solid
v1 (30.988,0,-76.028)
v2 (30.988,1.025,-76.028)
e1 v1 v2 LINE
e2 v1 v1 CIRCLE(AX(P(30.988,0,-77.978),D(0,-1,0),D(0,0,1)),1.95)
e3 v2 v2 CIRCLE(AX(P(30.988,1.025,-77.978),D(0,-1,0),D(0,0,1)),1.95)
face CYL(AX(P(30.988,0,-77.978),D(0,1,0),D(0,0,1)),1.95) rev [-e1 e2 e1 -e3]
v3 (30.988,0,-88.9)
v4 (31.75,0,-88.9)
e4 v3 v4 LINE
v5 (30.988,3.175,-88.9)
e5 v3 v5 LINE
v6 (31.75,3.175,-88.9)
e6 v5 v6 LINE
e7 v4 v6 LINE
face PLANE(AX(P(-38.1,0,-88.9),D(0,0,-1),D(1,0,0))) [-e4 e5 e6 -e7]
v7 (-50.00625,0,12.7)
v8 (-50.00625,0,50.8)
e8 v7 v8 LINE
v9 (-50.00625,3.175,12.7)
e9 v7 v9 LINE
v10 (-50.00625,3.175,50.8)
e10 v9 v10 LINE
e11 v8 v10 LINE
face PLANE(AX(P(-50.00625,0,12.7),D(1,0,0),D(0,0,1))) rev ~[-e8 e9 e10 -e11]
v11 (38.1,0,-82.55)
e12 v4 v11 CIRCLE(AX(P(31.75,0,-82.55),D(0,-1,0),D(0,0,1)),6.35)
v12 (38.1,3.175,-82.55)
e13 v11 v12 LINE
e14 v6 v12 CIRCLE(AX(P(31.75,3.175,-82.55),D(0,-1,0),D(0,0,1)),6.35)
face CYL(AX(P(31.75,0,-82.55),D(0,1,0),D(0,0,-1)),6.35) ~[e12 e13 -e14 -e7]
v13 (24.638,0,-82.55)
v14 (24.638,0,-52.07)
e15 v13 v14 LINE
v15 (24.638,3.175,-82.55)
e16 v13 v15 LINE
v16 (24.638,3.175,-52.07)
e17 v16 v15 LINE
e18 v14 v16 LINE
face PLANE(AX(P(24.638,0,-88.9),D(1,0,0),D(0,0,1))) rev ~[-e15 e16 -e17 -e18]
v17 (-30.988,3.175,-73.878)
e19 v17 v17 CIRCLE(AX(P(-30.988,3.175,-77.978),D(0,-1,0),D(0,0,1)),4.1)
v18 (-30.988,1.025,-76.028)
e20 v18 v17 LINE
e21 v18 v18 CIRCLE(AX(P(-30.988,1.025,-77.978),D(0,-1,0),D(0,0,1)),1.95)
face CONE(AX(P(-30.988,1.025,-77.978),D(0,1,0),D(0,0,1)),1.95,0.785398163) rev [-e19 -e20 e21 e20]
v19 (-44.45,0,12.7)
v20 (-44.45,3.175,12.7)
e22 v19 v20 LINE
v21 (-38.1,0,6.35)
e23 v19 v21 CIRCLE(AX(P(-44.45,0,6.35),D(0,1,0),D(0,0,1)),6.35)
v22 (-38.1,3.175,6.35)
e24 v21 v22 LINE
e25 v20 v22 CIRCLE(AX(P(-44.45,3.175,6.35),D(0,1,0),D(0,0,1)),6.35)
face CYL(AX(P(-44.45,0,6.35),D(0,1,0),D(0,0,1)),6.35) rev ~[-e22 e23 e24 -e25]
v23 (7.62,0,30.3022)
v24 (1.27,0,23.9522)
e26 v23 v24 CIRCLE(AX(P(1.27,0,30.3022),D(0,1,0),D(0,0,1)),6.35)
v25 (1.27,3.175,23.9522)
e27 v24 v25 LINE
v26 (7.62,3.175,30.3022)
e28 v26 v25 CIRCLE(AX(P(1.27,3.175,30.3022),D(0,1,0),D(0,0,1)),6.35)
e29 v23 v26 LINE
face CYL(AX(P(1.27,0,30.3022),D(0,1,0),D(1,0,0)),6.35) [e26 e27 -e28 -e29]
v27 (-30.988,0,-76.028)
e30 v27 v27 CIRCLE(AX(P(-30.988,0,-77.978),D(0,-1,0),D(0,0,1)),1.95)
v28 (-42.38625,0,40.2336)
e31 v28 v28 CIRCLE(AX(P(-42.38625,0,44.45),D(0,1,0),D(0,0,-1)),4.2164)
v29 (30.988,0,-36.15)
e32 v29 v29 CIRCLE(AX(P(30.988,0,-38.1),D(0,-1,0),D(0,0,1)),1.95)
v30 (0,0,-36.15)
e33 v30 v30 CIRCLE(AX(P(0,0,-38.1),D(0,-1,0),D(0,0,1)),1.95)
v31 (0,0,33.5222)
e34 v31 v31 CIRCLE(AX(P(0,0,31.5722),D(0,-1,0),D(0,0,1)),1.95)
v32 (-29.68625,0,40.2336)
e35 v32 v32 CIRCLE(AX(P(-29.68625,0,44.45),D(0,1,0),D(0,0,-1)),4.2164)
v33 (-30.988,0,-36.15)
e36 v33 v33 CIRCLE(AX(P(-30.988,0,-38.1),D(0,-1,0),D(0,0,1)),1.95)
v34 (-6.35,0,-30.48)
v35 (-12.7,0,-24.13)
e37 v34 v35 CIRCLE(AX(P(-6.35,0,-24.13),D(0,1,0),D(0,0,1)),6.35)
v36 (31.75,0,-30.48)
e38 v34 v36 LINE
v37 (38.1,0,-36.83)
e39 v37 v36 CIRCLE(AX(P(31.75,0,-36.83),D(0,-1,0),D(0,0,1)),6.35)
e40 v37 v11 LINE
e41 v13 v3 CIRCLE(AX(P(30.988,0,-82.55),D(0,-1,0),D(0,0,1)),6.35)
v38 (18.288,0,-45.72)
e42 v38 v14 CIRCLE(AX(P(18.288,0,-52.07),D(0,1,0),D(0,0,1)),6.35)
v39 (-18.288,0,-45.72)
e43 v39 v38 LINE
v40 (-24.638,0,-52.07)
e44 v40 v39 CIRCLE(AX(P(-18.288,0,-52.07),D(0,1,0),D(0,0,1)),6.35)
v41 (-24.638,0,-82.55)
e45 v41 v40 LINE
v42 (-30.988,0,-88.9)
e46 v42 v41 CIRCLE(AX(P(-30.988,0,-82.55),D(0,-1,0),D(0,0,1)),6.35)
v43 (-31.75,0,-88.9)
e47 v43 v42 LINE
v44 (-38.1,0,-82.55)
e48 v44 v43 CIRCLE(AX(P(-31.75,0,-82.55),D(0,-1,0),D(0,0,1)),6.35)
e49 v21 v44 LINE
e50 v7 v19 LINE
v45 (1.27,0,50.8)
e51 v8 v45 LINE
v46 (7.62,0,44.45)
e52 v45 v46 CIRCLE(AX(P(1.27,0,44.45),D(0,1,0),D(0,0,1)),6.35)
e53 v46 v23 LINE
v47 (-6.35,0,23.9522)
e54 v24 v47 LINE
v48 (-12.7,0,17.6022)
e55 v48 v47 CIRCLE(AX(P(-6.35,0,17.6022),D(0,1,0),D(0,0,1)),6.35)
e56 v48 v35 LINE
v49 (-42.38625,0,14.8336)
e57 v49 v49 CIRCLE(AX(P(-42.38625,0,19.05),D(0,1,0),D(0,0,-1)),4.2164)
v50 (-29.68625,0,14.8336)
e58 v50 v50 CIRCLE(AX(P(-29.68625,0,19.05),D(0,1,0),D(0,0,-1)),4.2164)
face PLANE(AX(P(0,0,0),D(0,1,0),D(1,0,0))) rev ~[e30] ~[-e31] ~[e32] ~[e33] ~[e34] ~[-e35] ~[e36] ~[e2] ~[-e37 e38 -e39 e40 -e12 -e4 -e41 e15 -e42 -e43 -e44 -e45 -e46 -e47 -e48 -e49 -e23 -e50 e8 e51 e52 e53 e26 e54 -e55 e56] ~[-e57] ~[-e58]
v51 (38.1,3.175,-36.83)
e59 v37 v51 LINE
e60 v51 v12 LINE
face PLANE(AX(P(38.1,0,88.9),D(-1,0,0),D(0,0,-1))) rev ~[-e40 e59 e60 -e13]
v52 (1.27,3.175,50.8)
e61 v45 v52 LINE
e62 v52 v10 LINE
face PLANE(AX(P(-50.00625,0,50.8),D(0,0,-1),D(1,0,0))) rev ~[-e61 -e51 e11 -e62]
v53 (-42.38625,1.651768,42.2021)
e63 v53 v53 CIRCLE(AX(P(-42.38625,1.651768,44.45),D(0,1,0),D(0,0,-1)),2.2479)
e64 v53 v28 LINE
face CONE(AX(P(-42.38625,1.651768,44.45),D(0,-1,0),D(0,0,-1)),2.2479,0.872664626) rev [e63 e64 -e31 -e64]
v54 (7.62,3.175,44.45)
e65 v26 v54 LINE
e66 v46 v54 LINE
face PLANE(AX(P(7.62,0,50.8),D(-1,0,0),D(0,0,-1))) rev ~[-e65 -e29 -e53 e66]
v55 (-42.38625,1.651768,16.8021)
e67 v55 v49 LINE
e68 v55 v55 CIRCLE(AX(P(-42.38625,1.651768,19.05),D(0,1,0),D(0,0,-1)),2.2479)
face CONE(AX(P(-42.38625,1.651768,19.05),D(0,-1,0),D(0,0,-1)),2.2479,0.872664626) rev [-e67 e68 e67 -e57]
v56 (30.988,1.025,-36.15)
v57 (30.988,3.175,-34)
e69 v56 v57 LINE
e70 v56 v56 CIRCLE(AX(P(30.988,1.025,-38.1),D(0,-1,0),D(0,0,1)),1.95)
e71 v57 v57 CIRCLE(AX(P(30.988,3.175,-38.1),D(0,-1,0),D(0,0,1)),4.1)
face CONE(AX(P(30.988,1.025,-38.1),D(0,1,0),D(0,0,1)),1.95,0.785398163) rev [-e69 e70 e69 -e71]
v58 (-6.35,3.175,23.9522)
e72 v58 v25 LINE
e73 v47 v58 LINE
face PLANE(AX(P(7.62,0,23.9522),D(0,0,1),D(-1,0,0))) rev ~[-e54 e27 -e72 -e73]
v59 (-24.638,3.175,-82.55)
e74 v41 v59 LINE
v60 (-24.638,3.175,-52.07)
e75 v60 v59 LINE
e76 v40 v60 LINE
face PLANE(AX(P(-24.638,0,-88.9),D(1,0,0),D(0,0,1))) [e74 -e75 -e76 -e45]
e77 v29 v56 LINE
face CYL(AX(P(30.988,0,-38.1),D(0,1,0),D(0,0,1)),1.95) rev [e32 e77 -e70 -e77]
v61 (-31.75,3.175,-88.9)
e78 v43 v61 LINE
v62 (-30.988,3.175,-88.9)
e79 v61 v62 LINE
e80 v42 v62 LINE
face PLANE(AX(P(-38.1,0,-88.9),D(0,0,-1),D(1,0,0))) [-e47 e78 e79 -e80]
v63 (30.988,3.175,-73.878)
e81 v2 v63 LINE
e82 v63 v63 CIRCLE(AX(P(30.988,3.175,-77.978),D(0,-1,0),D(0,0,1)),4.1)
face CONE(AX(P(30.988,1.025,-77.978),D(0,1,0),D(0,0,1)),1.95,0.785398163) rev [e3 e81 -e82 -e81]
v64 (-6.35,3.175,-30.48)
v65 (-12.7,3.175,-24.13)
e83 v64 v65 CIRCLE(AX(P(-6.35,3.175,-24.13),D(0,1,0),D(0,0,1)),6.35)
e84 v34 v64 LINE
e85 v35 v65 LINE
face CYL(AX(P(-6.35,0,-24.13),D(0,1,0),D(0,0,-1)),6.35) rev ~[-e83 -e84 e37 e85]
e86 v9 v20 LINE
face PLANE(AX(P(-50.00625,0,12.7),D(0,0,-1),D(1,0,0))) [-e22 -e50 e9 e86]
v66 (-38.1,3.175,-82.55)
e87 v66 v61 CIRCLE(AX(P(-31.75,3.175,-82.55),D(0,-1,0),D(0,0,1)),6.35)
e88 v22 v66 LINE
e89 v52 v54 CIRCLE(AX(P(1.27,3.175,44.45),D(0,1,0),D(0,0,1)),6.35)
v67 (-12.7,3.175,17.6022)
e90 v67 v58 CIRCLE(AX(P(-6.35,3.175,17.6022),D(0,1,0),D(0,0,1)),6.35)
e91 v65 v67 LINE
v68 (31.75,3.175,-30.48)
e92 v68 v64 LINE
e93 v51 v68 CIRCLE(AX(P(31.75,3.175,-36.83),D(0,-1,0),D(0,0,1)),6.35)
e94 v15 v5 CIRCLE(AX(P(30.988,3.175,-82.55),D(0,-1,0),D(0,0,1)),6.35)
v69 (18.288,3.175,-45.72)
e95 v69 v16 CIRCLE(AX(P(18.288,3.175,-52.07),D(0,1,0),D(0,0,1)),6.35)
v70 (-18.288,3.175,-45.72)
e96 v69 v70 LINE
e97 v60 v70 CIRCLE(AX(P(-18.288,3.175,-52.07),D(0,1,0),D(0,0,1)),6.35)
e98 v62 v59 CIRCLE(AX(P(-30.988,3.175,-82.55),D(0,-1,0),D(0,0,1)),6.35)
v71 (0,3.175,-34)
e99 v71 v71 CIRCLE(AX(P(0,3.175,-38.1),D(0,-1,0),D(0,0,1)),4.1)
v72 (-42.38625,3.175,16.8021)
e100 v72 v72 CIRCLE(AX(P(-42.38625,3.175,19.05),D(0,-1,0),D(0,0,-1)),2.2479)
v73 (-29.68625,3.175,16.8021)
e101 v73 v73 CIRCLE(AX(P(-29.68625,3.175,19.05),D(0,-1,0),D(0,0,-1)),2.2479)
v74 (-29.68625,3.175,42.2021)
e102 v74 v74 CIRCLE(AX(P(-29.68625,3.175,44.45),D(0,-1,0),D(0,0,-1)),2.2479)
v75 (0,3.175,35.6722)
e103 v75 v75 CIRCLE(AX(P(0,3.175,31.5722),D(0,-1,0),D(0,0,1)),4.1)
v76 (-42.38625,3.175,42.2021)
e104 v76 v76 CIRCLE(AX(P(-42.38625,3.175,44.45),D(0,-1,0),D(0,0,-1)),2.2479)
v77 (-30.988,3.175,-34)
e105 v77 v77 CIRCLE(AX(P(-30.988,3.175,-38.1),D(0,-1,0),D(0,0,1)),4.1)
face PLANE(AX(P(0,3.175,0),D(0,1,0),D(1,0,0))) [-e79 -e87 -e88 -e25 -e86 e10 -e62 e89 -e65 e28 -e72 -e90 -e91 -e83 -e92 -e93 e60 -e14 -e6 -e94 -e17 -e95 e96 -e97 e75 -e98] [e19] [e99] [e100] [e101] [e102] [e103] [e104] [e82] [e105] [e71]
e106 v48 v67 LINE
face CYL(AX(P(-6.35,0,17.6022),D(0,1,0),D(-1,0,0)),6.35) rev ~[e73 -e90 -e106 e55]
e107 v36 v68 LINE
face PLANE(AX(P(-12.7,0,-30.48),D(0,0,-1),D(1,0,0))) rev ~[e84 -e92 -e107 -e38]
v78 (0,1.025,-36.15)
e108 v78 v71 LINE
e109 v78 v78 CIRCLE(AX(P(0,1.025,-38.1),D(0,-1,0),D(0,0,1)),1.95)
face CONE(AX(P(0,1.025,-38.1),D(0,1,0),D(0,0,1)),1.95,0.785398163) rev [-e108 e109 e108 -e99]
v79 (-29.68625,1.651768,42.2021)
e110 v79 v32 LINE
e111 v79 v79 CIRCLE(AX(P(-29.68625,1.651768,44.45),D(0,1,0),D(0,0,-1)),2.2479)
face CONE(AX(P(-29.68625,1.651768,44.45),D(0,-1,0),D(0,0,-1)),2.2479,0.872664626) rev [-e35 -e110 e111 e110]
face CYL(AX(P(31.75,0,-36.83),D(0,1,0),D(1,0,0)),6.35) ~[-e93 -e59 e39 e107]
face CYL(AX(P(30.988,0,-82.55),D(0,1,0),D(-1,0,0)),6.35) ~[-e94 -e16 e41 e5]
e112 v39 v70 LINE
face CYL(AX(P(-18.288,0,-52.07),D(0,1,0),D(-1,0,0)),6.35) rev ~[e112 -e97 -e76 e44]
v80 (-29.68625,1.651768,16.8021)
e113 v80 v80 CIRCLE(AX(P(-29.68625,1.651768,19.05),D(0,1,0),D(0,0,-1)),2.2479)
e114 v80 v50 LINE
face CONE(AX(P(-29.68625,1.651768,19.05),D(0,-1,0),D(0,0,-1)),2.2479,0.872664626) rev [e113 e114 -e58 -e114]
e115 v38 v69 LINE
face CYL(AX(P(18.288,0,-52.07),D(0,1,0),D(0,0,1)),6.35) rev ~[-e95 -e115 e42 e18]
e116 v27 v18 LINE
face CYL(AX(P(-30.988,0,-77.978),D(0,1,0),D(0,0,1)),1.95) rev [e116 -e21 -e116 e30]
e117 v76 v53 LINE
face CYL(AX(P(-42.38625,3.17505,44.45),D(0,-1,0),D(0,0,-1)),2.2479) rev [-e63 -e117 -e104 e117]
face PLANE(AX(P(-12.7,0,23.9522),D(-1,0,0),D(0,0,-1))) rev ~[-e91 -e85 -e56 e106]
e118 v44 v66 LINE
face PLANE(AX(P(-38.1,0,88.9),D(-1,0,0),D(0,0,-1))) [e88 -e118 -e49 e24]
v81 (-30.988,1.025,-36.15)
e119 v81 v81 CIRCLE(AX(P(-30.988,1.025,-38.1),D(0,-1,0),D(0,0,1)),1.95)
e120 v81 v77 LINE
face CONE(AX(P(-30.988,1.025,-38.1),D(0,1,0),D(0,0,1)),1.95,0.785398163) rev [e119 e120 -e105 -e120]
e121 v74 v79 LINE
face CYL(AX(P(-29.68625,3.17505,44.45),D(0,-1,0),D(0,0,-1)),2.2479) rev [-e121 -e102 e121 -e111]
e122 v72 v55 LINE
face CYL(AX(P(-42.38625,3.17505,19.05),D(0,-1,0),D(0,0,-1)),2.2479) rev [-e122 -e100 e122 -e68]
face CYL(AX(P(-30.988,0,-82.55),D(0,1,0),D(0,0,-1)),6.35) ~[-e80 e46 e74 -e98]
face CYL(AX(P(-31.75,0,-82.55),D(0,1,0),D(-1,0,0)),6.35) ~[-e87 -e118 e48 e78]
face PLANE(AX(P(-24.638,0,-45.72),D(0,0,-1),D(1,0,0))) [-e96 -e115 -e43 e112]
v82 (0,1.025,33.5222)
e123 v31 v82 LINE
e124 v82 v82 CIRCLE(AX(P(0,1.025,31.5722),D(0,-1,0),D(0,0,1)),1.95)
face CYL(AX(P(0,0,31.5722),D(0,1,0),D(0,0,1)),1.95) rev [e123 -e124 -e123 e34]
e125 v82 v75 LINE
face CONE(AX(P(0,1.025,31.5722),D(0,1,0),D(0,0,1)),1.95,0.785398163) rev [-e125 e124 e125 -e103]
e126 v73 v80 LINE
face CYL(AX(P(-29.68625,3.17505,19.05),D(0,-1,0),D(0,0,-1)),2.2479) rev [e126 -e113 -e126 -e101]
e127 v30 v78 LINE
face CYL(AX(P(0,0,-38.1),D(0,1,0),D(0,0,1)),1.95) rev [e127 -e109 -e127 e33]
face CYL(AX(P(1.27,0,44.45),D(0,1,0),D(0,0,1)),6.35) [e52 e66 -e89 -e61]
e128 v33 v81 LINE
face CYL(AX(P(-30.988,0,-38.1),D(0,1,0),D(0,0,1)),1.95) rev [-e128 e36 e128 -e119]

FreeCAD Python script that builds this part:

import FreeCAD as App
import Part
import Sketcher
Q = App.Units.Quantity


def edges_at(feature, points):
    """Names of the edges that pass closest to the given points."""
    edges = feature.Shape.Edges
    near = lambda p: min(range(len(edges)), key=lambda i: edges[i].distToShape(Part.Vertex(*p))[0])
    return sorted({f"Edge{near(p) + 1}" for p in points})


def add_polygon(sketch, points):
    """Adds a closed chain of lines whose ends are joined by coincident constraints."""
    first, n = sketch.GeometryCount, len(points)
    for a, b in zip(points, points[1:] + points[:1]):
        sketch.addGeometry(Part.LineSegment(App.Vector(*a, 0), App.Vector(*b, 0)), False)
    for i in range(n):
        sketch.addConstraint(Sketcher.Constraint("Coincident", first + i, 2, first + (i + 1) % n, 1))

doc = App.newDocument("Part")
body = doc.addObject("PartDesign::Body", "Body")

# Sketch on XZ plane
sketch1 = body.newObject("Sketcher::SketchObject", "Sketch")
sketch1.AttachmentSupport = (doc.getObject("XZ_Plane"), [""])
sketch1.MapMode = "FlatFace"
add_polygon(sketch1, [(-38, -89), (-38, 89), (38, 89), (38, -89)])  # lines 0-3
sketch1.addConstraint([
    Sketcher.Constraint("Vertical", 0),
    Sketcher.Constraint("Horizontal", 1),
    Sketcher.Constraint("Vertical", 2),
    Sketcher.Constraint("Horizontal", 3),
    Sketcher.Constraint("Symmetric", 0, 2, 2, 2, -1, 1),
    Sketcher.Constraint("DistanceX", 1, 1, 1, 2, Q("3 in")),
    Sketcher.Constraint("DistanceY", 0, 1, 0, 2, Q("7 in")),
])
pad1 = body.newObject("PartDesign::Pad", "Pad")
pad1.Profile = sketch1
pad1.Length = Q("0.125 in")
pad1.Reversed = True

# Sketch on YZ plane
sketch2 = body.newObject("Sketcher::SketchObject", "Sketch001")
sketch2.AttachmentSupport = (doc.getObject("YZ_Plane"), [""])
sketch2.MapMode = "FlatFace"
sketch2.AttachmentOffset = App.Placement(App.Vector(0, 0, -1.22 * 25.4), App.Rotation())
add_polygon(sketch2, [(0, -78), (3.2, -78), (3.2, -73.9), (1, -76), (0, -76)])  # lines 0-4
sketch2.addGeometry(Part.LineSegment(App.Vector(3.2, -78, 0), App.Vector(0, -78, 0)), True)  # axis
sketch2.addConstraint([
    Sketcher.Constraint("Horizontal", 0),
    Sketcher.Constraint("Vertical", 1),
    Sketcher.Constraint("Horizontal", 3),
    Sketcher.Constraint("Vertical", 4),
    Sketcher.Constraint("Horizontal", 5),
    Sketcher.Constraint("Coincident", 5, 1, 0, 2),
    Sketcher.Constraint("PointOnObject", 3, 2, -2),
    Sketcher.Constraint("PointOnObject", 5, 2, -2),
    Sketcher.Constraint("Angle", 2, Q("-135 deg")),
    Sketcher.Constraint("DistanceX", 0, 1, 0, 2, Q("0.125 in")),
    Sketcher.Constraint("DistanceY", 0, 2, -1, 1, Q("3.07 in")),
    Sketcher.Constraint("DistanceX", 3, 2, 3, 1, 1.025),
    Sketcher.Constraint("DistanceY", 1, 1, 1, 2, 4.1),
])
groove = body.newObject("PartDesign::Groove", "Groove")
groove.Profile = sketch2
groove.ReferenceAxis = (sketch2, ["Axis0"])
groove.Angle = 360
doc.recompute()

linearpattern = body.newObject("PartDesign::LinearPattern", "LinearPattern")
linearpattern.Originals = [groove]
linearpattern.Direction = (doc.getObject("X_Axis"), [""])
linearpattern.Mode = "offset"
linearpattern.Offset = Q("2.44 in")
linearpattern.Occurrences = 2
body.Tip = linearpattern
doc.recompute()

datumline = body.newObject("PartDesign::Line", "DatumLine")
datumline.Placement = App.Placement(App.Vector(0, 0, 0), App.Rotation(App.Vector(0, 0, 1), App.Vector(0.840954441, 0, 0.541105931)))
linearpattern2 = body.newObject("PartDesign::LinearPattern", "LinearPattern001")
linearpattern2.Originals = [groove]
linearpattern2.Direction = (datumline, [""])
linearpattern2.Mode = "offset"
linearpattern2.Offset = 73.697215
linearpattern2.Occurrences = 2
body.Tip = linearpattern2
doc.recompute()

datumline2 = body.newObject("PartDesign::Line", "DatumLine001")
datumline2.Placement = App.Placement(App.Vector(0, 0, 0), App.Rotation(App.Vector(0, 0, 1), App.Vector(0.613592361, 0, 0.789622957)))
linearpattern3 = body.newObject("PartDesign::LinearPattern", "LinearPattern002")
linearpattern3.Originals = [groove]
linearpattern3.Direction = (datumline2, [""])
linearpattern3.Mode = "offset"
linearpattern3.Offset = 50.502584
linearpattern3.Occurrences = 2
body.Tip = linearpattern3
doc.recompute()

linearpattern4 = body.newObject("PartDesign::LinearPattern", "LinearPattern003")
linearpattern4.Originals = [groove]
linearpattern4.Direction = (doc.getObject("Z_Axis"), [""])
linearpattern4.Mode = "offset"
linearpattern4.Offset = Q("1.57 in")
linearpattern4.Occurrences = 2
body.Tip = linearpattern4
doc.recompute()

datumline3 = body.newObject("PartDesign::Line", "DatumLine002")
datumline3.Placement = App.Placement(App.Vector(0, 0, 0), App.Rotation(App.Vector(0, 0, 1), App.Vector(0.272186057, 0, 0.962244642)))
linearpattern5 = body.newObject("PartDesign::LinearPattern", "LinearPattern004")
linearpattern5.Originals = [groove]
linearpattern5.Direction = (datumline3, [""])
linearpattern5.Mode = "offset"
linearpattern5.Offset = 113.848594
linearpattern5.Occurrences = 2
body.Tip = linearpattern5

# Sketch on XZ plane
sketch3 = body.newObject("Sketcher::SketchObject", "Sketch002")
sketch3.AttachmentSupport = (doc.getObject("XZ_Plane"), [""])
sketch3.MapMode = "FlatFace"
add_polygon(sketch3, [(-50, 51), (-50, 13), (-38, 13), (-38, 51)])  # lines 0-3
sketch3.addConstraint([
    Sketcher.Constraint("Vertical", 0),
    Sketcher.Constraint("Horizontal", 1),
    Sketcher.Constraint("Vertical", 2),
    Sketcher.Constraint("Horizontal", 3),
    Sketcher.Constraint("DistanceY", 0, 2, 0, 1, Q("1.5 in")),
    Sketcher.Constraint("DistanceY", -1, 1, 2, 2, Q("2 in")),
    Sketcher.Constraint("DistanceX", 1, 2, -1, 1, Q("1.5 in")),
    Sketcher.Constraint("DistanceX", 1, 1, 1, 2, Q("0.46875 in")),
])
pad2 = body.newObject("PartDesign::Pad", "Pad001")
pad2.Profile = sketch3
pad2.Length = Q("0.125 in")
pad2.Reversed = True

# Sketch on YZ plane
sketch4 = body.newObject("Sketcher::SketchObject", "Sketch003")
sketch4.AttachmentSupport = (doc.getObject("YZ_Plane"), [""])
sketch4.MapMode = "FlatFace"
sketch4.AttachmentOffset = App.Placement(App.Vector(0, 0, -29.68625), App.Rotation())
add_polygon(sketch4, [(3.2, 44.5), (0, 44.5), (0, 40.2), (1.7, 42.2), (3.2, 42.2)])  # lines 0-4
sketch4.addGeometry(Part.LineSegment(App.Vector(0, 44.5, 0), App.Vector(3.2, 44.5, 0)), True)  # axis
sketch4.addConstraint([
    Sketcher.Constraint("Horizontal", 0),
    Sketcher.Constraint("Vertical", 1),
    Sketcher.Constraint("Horizontal", 3),
    Sketcher.Constraint("Vertical", 4),
    Sketcher.Constraint("Horizontal", 5),
    Sketcher.Constraint("Coincident", 5, 1, 0, 2),
    Sketcher.Constraint("PointOnObject", 0, 2, -2),
    Sketcher.Constraint("Vertical", 3, 2, 5, 2),
    Sketcher.Constraint("Angle", 2, Q("50 deg")),
    Sketcher.Constraint("DistanceY", 1, 2, 1, 1, Q("0.166 in")),
    Sketcher.Constraint("DistanceY", -1, 1, 0, 2, Q("1.75 in")),
    Sketcher.Constraint("DistanceY", 4, 1, 4, 2, Q("0.0885 in")),
    Sketcher.Constraint("DistanceX", 0, 2, 0, 1, 3.17505),
])
groove2 = body.newObject("PartDesign::Groove", "Groove001")
groove2.Profile = sketch4
groove2.ReferenceAxis = (sketch4, ["Axis0"])
groove2.Angle = 360
doc.recompute()

datumline4 = body.newObject("PartDesign::Line", "DatumLine003")
datumline4.Placement = App.Placement(App.Vector(0, 0, 0), App.Rotation(App.Vector(0, 0, 1), App.Vector(-0.447213595, 0, -0.894427191)))
linearpattern6 = body.newObject("PartDesign::LinearPattern", "LinearPattern005")
linearpattern6.Originals = [groove2]
linearpattern6.Direction = (datumline4, [""])
linearpattern6.Mode = "offset"
linearpattern6.Offset = 28.398063
linearpattern6.Occurrences = 2
body.Tip = linearpattern6
doc.recompute()

linearpattern7 = body.newObject("PartDesign::LinearPattern", "LinearPattern006")
linearpattern7.Originals = [groove2]
linearpattern7.Direction = (doc.getObject("X_Axis"), [""])
linearpattern7.Mode = "offset"
linearpattern7.Offset = Q("0.5 in")
linearpattern7.Occurrences = 2
linearpattern7.Reversed = True
body.Tip = linearpattern7
doc.recompute()

linearpattern8 = body.newObject("PartDesign::LinearPattern", "LinearPattern007")
linearpattern8.Originals = [groove2]
linearpattern8.Direction = (doc.getObject("Z_Axis"), [""])
linearpattern8.Mode = "offset"
linearpattern8.Offset = Q("1 in")
linearpattern8.Occurrences = 2
linearpattern8.Reversed = True
body.Tip = linearpattern8

# Sketch on XZ plane
sketch5 = body.newObject("Sketcher::SketchObject", "Sketch004")
sketch5.AttachmentSupport = (doc.getObject("XZ_Plane"), [""])
sketch5.MapMode = "FlatFace"
add_polygon(sketch5, [(-38, 89), (-38, 51), (38, 51), (38, 89)])  # lines 0-3
sketch5.addConstraint([
    Sketcher.Constraint("Vertical", 0),
    Sketcher.Constraint("Horizontal", 1),
    Sketcher.Constraint("Vertical", 2),
    Sketcher.Constraint("Horizontal", 3),
    Sketcher.Constraint("DistanceX", 1, 1, 1, 2, Q("3 in")),
    Sketcher.Constraint("DistanceY", 0, 2, 0, 1, Q("1.5 in")),
    Sketcher.Constraint("DistanceY", -1, 1, 0, 2, Q("2 in")),
    Sketcher.Constraint("DistanceX", 0, 2, -1, 1, Q("1.5 in")),
])
pocket1 = body.newObject("PartDesign::Pocket", "Pocket")
pocket1.Profile = sketch5
pocket1.Type = "ThroughAll"

# Sketch on XZ plane
sketch6 = body.newObject("Sketcher::SketchObject", "Sketch005")
sketch6.AttachmentSupport = (doc.getObject("XZ_Plane"), [""])
sketch6.MapMode = "FlatFace"
add_polygon(sketch6, [(-25, -46), (-25, -89), (25, -89), (25, -46)])  # lines 0-3
sketch6.addConstraint([
    Sketcher.Constraint("Vertical", 0),
    Sketcher.Constraint("Horizontal", 1),
    Sketcher.Constraint("Vertical", 2),
    Sketcher.Constraint("Horizontal", 3),
    Sketcher.Constraint("DistanceY", 0, 2, 0, 1, Q("1.7 in")),
    Sketcher.Constraint("DistanceX", 1, 1, 1, 2, Q("1.94 in")),
    Sketcher.Constraint("DistanceY", 0, 2, -1, 1, Q("3.5 in")),
    Sketcher.Constraint("DistanceX", 0, 2, -1, 1, Q("0.97 in")),
])
pocket2 = body.newObject("PartDesign::Pocket", "Pocket001")
pocket2.Profile = sketch6
pocket2.Type = "ThroughAll"

# Sketch on XZ plane
sketch7 = body.newObject("Sketcher::SketchObject", "Sketch006")
sketch7.AttachmentSupport = (doc.getObject("XZ_Plane"), [""])
sketch7.MapMode = "FlatFace"
add_polygon(sketch7, [(8, 51), (8, 24), (-13, 24), (-13, -30), (38, -30), (38, 51)])  # lines 0-5
sketch7.addConstraint([
    Sketcher.Constraint("Vertical", 0),
    Sketcher.Constraint("Horizontal", 1),
    Sketcher.Constraint("Vertical", 2),
    Sketcher.Constraint("Horizontal", 3),
    Sketcher.Constraint("Vertical", 4),
    Sketcher.Constraint("Horizontal", 5),
    Sketcher.Constraint("DistanceX", 3, 1, 3, 2, Q("2 in")),
    Sketcher.Constraint("DistanceX", 1, 2, 1, 1, Q("0.8 in")),
    Sketcher.Constraint("DistanceY", 4, 1, 4, 2, Q("3.2 in")),
    Sketcher.Constraint("DistanceY", -1, 1, 4, 2, Q("2 in")),
    Sketcher.Constraint("DistanceX", -1, 1, 0, 2, Q("0.3 in")),
    Sketcher.Constraint("DistanceY", 0, 2, 0, 1, Q("1.057 in")),
])
pocket3 = body.newObject("PartDesign::Pocket", "Pocket002")
pocket3.Profile = sketch7
pocket3.Type = "ThroughAll"
doc.recompute()

fillet = body.newObject("PartDesign::Fillet", "Fillet")
fillet.Base = (pocket3, edges_at(pocket3, [
    (24.638, 1.587, -45.72),
    (-24.638, 1.587, -45.72),
    (38.1, 1.587, -30.48),
    (-12.7, 1.587, -30.48),
    (-12.7, 1.587, 23.952),
    (7.62, 1.587, 23.952),
    (-38.1, 1.587, 12.7),
]))
fillet.Radius = Q("0.25 in")
doc.recompute()

fillet2 = body.newObject("PartDesign::Fillet", "Fillet001")
fillet2.Base = (fillet, edges_at(fillet, [
    (-38.1, 1.587, -88.9),
    (-24.638, 1.587, -88.9),
    (24.638, 1.587, -88.9),
    (38.1, 1.587, -88.9),
    (7.62, 1.587, 50.8),
]))
fillet2.Radius = Q("0.25 in")

doc.recompute()
